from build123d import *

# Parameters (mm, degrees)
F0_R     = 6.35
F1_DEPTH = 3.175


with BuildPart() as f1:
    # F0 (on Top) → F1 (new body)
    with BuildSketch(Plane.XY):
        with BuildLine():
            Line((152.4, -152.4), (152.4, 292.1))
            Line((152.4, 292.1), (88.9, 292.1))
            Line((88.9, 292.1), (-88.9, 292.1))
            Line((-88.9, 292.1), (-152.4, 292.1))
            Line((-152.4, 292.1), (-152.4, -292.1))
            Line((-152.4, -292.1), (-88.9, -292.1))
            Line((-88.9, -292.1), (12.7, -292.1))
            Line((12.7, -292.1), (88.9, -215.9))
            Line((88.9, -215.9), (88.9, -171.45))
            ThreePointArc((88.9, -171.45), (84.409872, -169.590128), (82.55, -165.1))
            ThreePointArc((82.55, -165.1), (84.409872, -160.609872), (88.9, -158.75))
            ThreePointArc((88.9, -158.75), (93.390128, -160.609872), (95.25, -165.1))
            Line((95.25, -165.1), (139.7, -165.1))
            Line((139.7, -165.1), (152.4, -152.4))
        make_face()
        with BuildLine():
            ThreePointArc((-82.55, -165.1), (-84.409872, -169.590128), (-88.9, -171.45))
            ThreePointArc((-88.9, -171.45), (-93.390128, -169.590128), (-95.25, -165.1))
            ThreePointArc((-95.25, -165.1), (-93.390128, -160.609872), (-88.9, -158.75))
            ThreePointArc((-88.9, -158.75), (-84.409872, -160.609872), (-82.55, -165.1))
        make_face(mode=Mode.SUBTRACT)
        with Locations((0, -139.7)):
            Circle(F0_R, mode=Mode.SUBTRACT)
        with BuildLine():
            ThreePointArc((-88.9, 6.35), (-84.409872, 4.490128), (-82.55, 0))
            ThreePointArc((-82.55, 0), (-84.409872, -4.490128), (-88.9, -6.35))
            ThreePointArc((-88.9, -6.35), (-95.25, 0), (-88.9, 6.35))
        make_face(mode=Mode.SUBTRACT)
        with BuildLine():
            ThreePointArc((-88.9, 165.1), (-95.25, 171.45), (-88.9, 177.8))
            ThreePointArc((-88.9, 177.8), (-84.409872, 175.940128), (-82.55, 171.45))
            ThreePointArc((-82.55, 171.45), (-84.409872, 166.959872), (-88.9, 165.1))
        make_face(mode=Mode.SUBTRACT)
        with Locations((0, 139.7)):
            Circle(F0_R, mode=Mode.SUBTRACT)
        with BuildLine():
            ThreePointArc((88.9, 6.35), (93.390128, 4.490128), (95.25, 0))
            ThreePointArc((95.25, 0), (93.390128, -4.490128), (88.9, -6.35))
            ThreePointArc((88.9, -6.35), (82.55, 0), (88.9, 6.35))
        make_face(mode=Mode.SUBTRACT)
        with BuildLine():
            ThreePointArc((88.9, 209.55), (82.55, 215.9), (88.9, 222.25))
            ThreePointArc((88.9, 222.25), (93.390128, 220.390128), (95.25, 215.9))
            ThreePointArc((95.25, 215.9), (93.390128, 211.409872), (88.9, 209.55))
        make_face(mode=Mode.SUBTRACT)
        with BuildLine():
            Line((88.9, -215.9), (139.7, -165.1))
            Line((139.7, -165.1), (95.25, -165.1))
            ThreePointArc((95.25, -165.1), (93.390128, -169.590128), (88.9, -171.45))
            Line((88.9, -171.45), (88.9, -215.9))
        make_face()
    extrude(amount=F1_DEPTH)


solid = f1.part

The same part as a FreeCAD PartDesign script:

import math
import FreeCAD as App
import Part
import Sketcher
Q = App.Units.Quantity


def add_polygon(sketch, points):
    """Adds a closed chain of lines whose ends are joined by coincident constraints."""
    first, n = sketch.GeometryCount, len(points)
    for a, b in zip(points, points[1:] + points[:1]):
        sketch.addGeometry(Part.LineSegment(App.Vector(*a, 0), App.Vector(*b, 0)), False)
    for i in range(n):
        sketch.addConstraint(Sketcher.Constraint("Coincident", first + i, 2, first + (i + 1) % n, 1))

doc = App.newDocument("Part")
body = doc.addObject("PartDesign::Body", "Body")

sketch1 = doc.addObject("Sketcher::SketchObject", "Sketch")
body.addObject(sketch1)
sketch1.AttachmentSupport = (doc.XY_Plane, [""])
sketch1.MapMode = "FlatFace"
add_polygon(sketch1, [(152, -152), (152, 292), (-152, 292), (-152, -292), (13, -292)])
sketch1.addGeometry(Part.ArcOfCircle(Part.Circle(App.Vector(89, -165, 0), App.Vector(0, 0, 1), 6), math.radians(0), math.radians(90)), False)
sketch1.addGeometry(Part.ArcOfCircle(Part.Circle(App.Vector(89, -165, 0), App.Vector(0, 0, 1), 6), math.radians(-90), math.radians(0)), False)
sketch1.addGeometry(Part.ArcOfCircle(Part.Circle(App.Vector(89, -165, 0), App.Vector(0, 0, 1), 6), math.radians(-180), math.radians(-90)), False)
sketch1.addGeometry(Part.ArcOfCircle(Part.Circle(App.Vector(89, -165, 0), App.Vector(0, 0, 1), 6), math.radians(90), math.radians(180)), False)
sketch1.addGeometry(Part.ArcOfCircle(Part.Circle(App.Vector(-89, -165, 0), App.Vector(0, 0, 1), 6), math.radians(0), math.radians(90)), False)
sketch1.addGeometry(Part.ArcOfCircle(Part.Circle(App.Vector(-89, -165, 0), App.Vector(0, 0, 1), 6), math.radians(-90), math.radians(0)), False)
sketch1.addGeometry(Part.ArcOfCircle(Part.Circle(App.Vector(-89, -165, 0), App.Vector(0, 0, 1), 6), math.radians(-180), math.radians(-90)), False)
sketch1.addGeometry(Part.ArcOfCircle(Part.Circle(App.Vector(-89, -165, 0), App.Vector(0, 0, 1), 6), math.radians(90), math.radians(180)), False)
sketch1.addGeometry(Part.ArcOfCircle(Part.Circle(App.Vector(-89, 0, 0), App.Vector(0, 0, 1), 6), math.radians(90), math.radians(270)), False)
sketch1.addGeometry(Part.ArcOfCircle(Part.Circle(App.Vector(-89, 0, 0), App.Vector(0, 0, 1), 6), math.radians(0), math.radians(90)), False)
sketch1.addGeometry(Part.ArcOfCircle(Part.Circle(App.Vector(-89, 0, 0), App.Vector(0, 0, 1), 6), math.radians(-90), math.radians(0)), False)
sketch1.addGeometry(Part.Circle(App.Vector(0, -140, 0), App.Vector(0, 0, 1), 6), False)
sketch1.addGeometry(Part.ArcOfCircle(Part.Circle(App.Vector(89, 0, 0), App.Vector(0, 0, 1), 6), math.radians(90), math.radians(270)), False)
sketch1.addGeometry(Part.ArcOfCircle(Part.Circle(App.Vector(89, 0, 0), App.Vector(0, 0, 1), 6), math.radians(0), math.radians(90)), False)
sketch1.addGeometry(Part.ArcOfCircle(Part.Circle(App.Vector(89, 0, 0), App.Vector(0, 0, 1), 6), math.radians(-90), math.radians(0)), False)
sketch1.addGeometry(Part.ArcOfCircle(Part.Circle(App.Vector(-89, 171, 0), App.Vector(0, 0, 1), 6), math.radians(-90), math.radians(0)), False)
sketch1.addGeometry(Part.ArcOfCircle(Part.Circle(App.Vector(-89, 171, 0), App.Vector(0, 0, 1), 6), math.radians(90), math.radians(270)), False)
sketch1.addGeometry(Part.ArcOfCircle(Part.Circle(App.Vector(-89, 171, 0), App.Vector(0, 0, 1), 6), math.radians(0), math.radians(90)), False)
sketch1.addGeometry(Part.Circle(App.Vector(0, 140, 0), App.Vector(0, 0, 1), 6), False)
sketch1.addGeometry(Part.ArcOfCircle(Part.Circle(App.Vector(89, 216, 0), App.Vector(0, 0, 1), 6), math.radians(-90), math.radians(0)), False)
sketch1.addGeometry(Part.ArcOfCircle(Part.Circle(App.Vector(89, 216, 0), App.Vector(0, 0, 1), 6), math.radians(90), math.radians(270)), False)
sketch1.addGeometry(Part.ArcOfCircle(Part.Circle(App.Vector(89, 216, 0), App.Vector(0, 0, 1), 6), math.radians(0), math.radians(90)), False)
sketch1.addConstraint([
    Sketcher.Constraint("Tangent", 5, 1, 6, 2),
    Sketcher.Constraint("Tangent", 6, 1, 7, 2),
    Sketcher.Constraint("Tangent", 7, 1, 8, 2),
    Sketcher.Constraint("Tangent", 8, 1, 5, 2),
    Sketcher.Constraint("Tangent", 9, 1, 10, 2),
    Sketcher.Constraint("Tangent", 10, 1, 11, 2),
    Sketcher.Constraint("Tangent", 11, 1, 12, 2),
    Sketcher.Constraint("Tangent", 12, 1, 9, 2),
    Sketcher.Constraint("Tangent", 13, 1, 14, 2),
    Sketcher.Constraint("Tangent", 14, 1, 15, 2),
    Sketcher.Constraint("Tangent", 15, 1, 13, 2),
    Sketcher.Constraint("Tangent", 17, 1, 18, 2),
    Sketcher.Constraint("Tangent", 18, 1, 19, 2),
    Sketcher.Constraint("Tangent", 19, 1, 17, 2),
    Sketcher.Constraint("Tangent", 20, 1, 21, 2),
    Sketcher.Constraint("Tangent", 21, 1, 22, 2),
    Sketcher.Constraint("Tangent", 22, 1, 20, 2),
    Sketcher.Constraint("Tangent", 24, 1, 25, 2),
    Sketcher.Constraint("Tangent", 25, 1, 26, 2),
    Sketcher.Constraint("Tangent", 26, 1, 24, 2),
    Sketcher.Constraint("Vertical", 0),
    Sketcher.Constraint("Horizontal", 1),
    Sketcher.Constraint("Vertical", 2),
    Sketcher.Constraint("Horizontal", 3),
    Sketcher.Constraint("Equal", 5, 6),
    Sketcher.Constraint("Equal", 8, 9),
    Sketcher.Constraint("Equal", 9, 10),
    Sketcher.Constraint("Equal", 12, 13),
    Sketcher.Constraint("Equal", 15, 16),
    Sketcher.Constraint("Equal", 16, 17),
    Sketcher.Constraint("Equal", 19, 20),
    Sketcher.Constraint("Equal", 22, 23),
    Sketcher.Constraint("Equal", 23, 24),
    Sketcher.Constraint("Symmetric", 13, 3, 17, 3, -1, 1),
    Sketcher.Constraint("Symmetric", 16, 3, 23, 3, -1, 1),
    Sketcher.Constraint("Symmetric", 0, 2, 2, 2, -1, 1),
    Sketcher.Constraint("Symmetric", 5, 3, 9, 3, -2),
    Sketcher.Constraint("Symmetric", 13, 1, 17, 1, -2),
    Sketcher.Constraint("PointOnObject", 16, 3, -2),
    Sketcher.Constraint("PointOnObject", 14, 1, -1),
    Sketcher.Constraint("PointOnObject", 18, 1, -1),
    Sketcher.Constraint("Horizontal", 12, 3, 5, 1),
    Sketcher.Constraint("Horizontal", 5, 1, 7, 1),
    Sketcher.Constraint("Horizontal", 7, 1, 9, 1),
    Sketcher.Constraint("Horizontal", 9, 1, 11, 1),
    Sketcher.Constraint("Horizontal", 21, 3, 22, 1),
    Sketcher.Constraint("Horizontal", 25, 3, 26, 1),
    Sketcher.Constraint("Vertical", 12, 3, 13, 3),
    Sketcher.Constraint("Vertical", 15, 3, 20, 3),
    Sketcher.Constraint("Vertical", 19, 3, 24, 3),
    Sketcher.Constraint("Vertical", 26, 3, 6, 1),
    Sketcher.Constraint("Vertical", 6, 1, 8, 1),
    Sketcher.Constraint("Vertical", 22, 3, 10, 1),
    Sketcher.Constraint("Vertical", 10, 1, 12, 1),
    Sketcher.Constraint("Vertical", 12, 1, 13, 1),
    Sketcher.Constraint("Vertical", 13, 1, 15, 1),
    Sketcher.Constraint("Vertical", 17, 1, 19, 1),
    Sketcher.Constraint("Vertical", 15, 1, 20, 1),
    Sketcher.Constraint("Vertical", 20, 1, 21, 1),
    Sketcher.Constraint("Vertical", 19, 1, 24, 1),
    Sketcher.Constraint("Vertical", 24, 1, 25, 1),
    Sketcher.Constraint("Diameter", 16, Q("0.5 in")),
    Sketcher.Constraint("DistanceX", 1, 2, 1, 1, Q("12 in")),
    Sketcher.Constraint("DistanceY", 2, 2, 2, 1, Q("23 in")),
    Sketcher.Constraint("DistanceX", 3, 1, 3, 2, Q("6.5 in")),
    Sketcher.Constraint("DistanceY", 0, 1, 0, 2, Q("17.5 in")),
    Sketcher.Constraint("DistanceY", -1, 1, 21, 1, Q("7 in")),
    Sketcher.Constraint("DistanceX", 9, 3, 5, 3, Q("7 in")),
    Sketcher.Constraint("DistanceY", 6, 3, 16, 3, Q("1 in")),
    Sketcher.Constraint("DistanceY", 23, 3, 24, 3, Q("3 in")),
    Sketcher.Constraint("DistanceY", 24, 3, 0, 2, Q("3 in")),
])
pad1 = doc.addObject("PartDesign::Pad", "Pad")
body.addObject(pad1)
pad1.Profile = sketch1
pad1.Length = Q("0.125 in")

doc.recompute()
